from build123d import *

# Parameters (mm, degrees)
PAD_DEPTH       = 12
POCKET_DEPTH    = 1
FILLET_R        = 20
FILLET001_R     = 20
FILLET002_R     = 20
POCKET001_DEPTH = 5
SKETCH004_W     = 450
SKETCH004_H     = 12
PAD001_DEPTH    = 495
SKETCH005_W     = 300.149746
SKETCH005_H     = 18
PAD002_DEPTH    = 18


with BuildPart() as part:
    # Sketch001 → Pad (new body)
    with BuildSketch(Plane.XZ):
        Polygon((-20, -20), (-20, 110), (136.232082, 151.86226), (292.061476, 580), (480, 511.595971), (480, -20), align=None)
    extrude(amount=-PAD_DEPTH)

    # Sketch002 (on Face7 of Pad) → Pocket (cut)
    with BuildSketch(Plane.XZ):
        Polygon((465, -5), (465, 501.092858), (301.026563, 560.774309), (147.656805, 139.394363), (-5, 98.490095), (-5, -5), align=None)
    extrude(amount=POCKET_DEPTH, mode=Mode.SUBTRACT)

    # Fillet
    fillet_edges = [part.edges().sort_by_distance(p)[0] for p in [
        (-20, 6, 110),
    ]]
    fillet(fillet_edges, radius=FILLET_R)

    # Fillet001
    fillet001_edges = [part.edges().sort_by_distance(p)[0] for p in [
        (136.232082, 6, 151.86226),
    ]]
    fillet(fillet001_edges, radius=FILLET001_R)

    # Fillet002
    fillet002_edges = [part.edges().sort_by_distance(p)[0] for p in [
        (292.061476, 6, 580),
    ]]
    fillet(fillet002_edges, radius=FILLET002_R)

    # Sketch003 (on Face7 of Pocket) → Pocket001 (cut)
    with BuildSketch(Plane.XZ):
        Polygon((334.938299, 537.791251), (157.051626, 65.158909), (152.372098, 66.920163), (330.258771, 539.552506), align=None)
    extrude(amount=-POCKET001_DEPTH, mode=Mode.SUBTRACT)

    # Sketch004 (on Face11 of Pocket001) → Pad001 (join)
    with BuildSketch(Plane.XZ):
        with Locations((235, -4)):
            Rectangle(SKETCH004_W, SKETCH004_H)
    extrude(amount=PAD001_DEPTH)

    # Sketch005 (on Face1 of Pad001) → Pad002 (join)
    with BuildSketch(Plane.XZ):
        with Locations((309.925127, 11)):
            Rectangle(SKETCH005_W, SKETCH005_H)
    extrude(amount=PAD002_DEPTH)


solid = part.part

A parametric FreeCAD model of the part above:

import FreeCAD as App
import Part
import Sketcher
Q = App.Units.Quantity


def edges_at(feature, points):
    """Names of the edges that pass closest to the given points."""
    edges = feature.Shape.Edges
    near = lambda p: min(range(len(edges)), key=lambda i: edges[i].distToShape(Part.Vertex(*p))[0])
    return sorted({f"Edge{near(p) + 1}" for p in points})

doc = App.newDocument("Part")
params = doc.addObject("Spreadsheet::Sheet", "Params")
for row, (alias, value) in enumerate([
    ("sketch1_width", "500 mm"),
    ("sketch1_height", "130 mm"),
    ("sketch1_length", "200 mm"),
    ("pad1_length", "12 mm"),
    ("sketch2_width", "470 mm"),
    ("pocket1_length", "1 mm"),
    ("fillet_radius", "20 mm"),
    ("fillet2_radius", "20 mm"),
    ("fillet3_radius", "20 mm"),
    ("sketch3_length", "504.999999 mm"),
    ("sketch3_length2", "5 mm"),
    ("pocket2_length", "5 mm"),
    ("sketch4_width", "450 mm"),
    ("sketch4_height", "12 mm"),
    ("pad2_length", "495 mm"),
    ("sketch5_height", "18 mm"),
    ("pad3_length", "18 mm"),
], start=1):
    params.set(f"A{row}", alias)
    params.set(f"B{row}", "=" + value)
    params.setAlias(f"B{row}", alias)

body = doc.addObject("PartDesign::Body", "Body")

# Sketch on XZ plane
sketch1 = body.newObject("Sketcher::SketchObject", "Sketch")
sketch1.AttachmentSupport = (doc.getObject("XZ_Plane"), [""])
sketch1.MapMode = "FlatFace"
sketch1.addGeometry(Part.LineSegment(App.Vector(-20, 110, 0), App.Vector(-20, -20, 0)), False)
sketch1.addGeometry(Part.LineSegment(App.Vector(-20, -20, 0), App.Vector(480, -20, 0)), False)
sketch1.addGeometry(Part.LineSegment(App.Vector(480, -20, 0), App.Vector(480, 512, 0)), False)
sketch1.addGeometry(Part.LineSegment(App.Vector(480, 512, 0), App.Vector(292, 580, 0)), False)
sketch1.addGeometry(Part.LineSegment(App.Vector(292, 580, 0), App.Vector(136, 152, 0)), False)
sketch1.addGeometry(Part.LineSegment(App.Vector(136, 152, 0), App.Vector(-20, 110, 0)), False)
sketch1.addConstraint(Sketcher.Constraint("Coincident", 0, 2, 1, 1))
sketch1.addConstraint(Sketcher.Constraint("Coincident", 1, 2, 2, 1))
sketch1.addConstraint(Sketcher.Constraint("Coincident", 2, 2, 3, 1))
sketch1.addConstraint(Sketcher.Constraint("Coincident", 3, 2, 4, 1))
sketch1.addConstraint(Sketcher.Constraint("Coincident", 4, 2, 5, 1))
sketch1.addConstraint(Sketcher.Constraint("Coincident", 5, 2, 0, 1))
sketch1.addConstraint(Sketcher.Constraint("Vertical", 0))
sketch1.addConstraint(Sketcher.Constraint("Horizontal", 1))
sketch1.addConstraint(Sketcher.Constraint("Vertical", 2))
sketch1.addConstraint(Sketcher.Constraint("Perpendicular", 3, 4))
sketch1.addConstraint(Sketcher.Constraint("DistanceX", 1, 1, 1, 2, 500.0))
sketch1.addConstraint(Sketcher.Constraint("DistanceY", 0, 2, 0, 1, 130.0))
sketch1.addConstraint(Sketcher.Constraint("Angle", 3, Q("160 deg")))
sketch1.addConstraint(Sketcher.Constraint("Angle", 5, Q("-165 deg")))
sketch1.addConstraint(Sketcher.Constraint("Distance", 3, 200.0))
sketch1.addConstraint(Sketcher.Constraint("DistanceX", 0, 2, -1, 1, 20.0))
sketch1.addConstraint(Sketcher.Constraint("DistanceY", 0, 2, -1, 1, 20.0))
sketch1.addConstraint(Sketcher.Constraint("DistanceY", -1, 1, 3, 2, 580.0))
sketch1.setExpression("Constraints[10]", "Params.sketch1_width")
sketch1.setExpression("Constraints[11]", "Params.sketch1_height")
sketch1.setExpression("Constraints[14]", "Params.sketch1_length")
pad1 = body.newObject("PartDesign::Pad", "Pad")
pad1.Profile = sketch1
pad1.setExpression("Length", "Params.pad1_length")
pad1.Reversed = True

# Sketch on XZ plane
sketch2 = body.newObject("Sketcher::SketchObject", "Sketch001")
sketch2.AttachmentSupport = (doc.getObject("XZ_Plane"), [""])
sketch2.MapMode = "FlatFace"
sketch2.addGeometry(Part.LineSegment(App.Vector(465, -5, 0), App.Vector(465, 501, 0)), False)
sketch2.addGeometry(Part.LineSegment(App.Vector(465, 501, 0), App.Vector(301, 561, 0)), False)
sketch2.addGeometry(Part.LineSegment(App.Vector(301, 561, 0), App.Vector(148, 139, 0)), False)
sketch2.addGeometry(Part.LineSegment(App.Vector(148, 139, 0), App.Vector(-5, 98, 0)), False)
sketch2.addGeometry(Part.LineSegment(App.Vector(-5, 98, 0), App.Vector(-5, -5, 0)), False)
sketch2.addGeometry(Part.LineSegment(App.Vector(-5, -5, 0), App.Vector(465, -5, 0)), False)
sketch2.addConstraint(Sketcher.Constraint("Coincident", 0, 2, 1, 1))
sketch2.addConstraint(Sketcher.Constraint("Coincident", 1, 2, 2, 1))
sketch2.addConstraint(Sketcher.Constraint("Coincident", 2, 2, 3, 1))
sketch2.addConstraint(Sketcher.Constraint("Coincident", 3, 2, 4, 1))
sketch2.addConstraint(Sketcher.Constraint("Coincident", 4, 2, 5, 1))
sketch2.addConstraint(Sketcher.Constraint("Coincident", 5, 2, 0, 1))
sketch2.addConstraint(Sketcher.Constraint("Vertical", 0))
sketch2.addConstraint(Sketcher.Constraint("Vertical", 4))
sketch2.addConstraint(Sketcher.Constraint("Horizontal", 5))
sketch2.addConstraint(Sketcher.Constraint("Perpendicular", 1, 2))
sketch2.addConstraint(Sketcher.Constraint("DistanceX", 5, 1, 5, 2, 470.0))
sketch2.addConstraint(Sketcher.Constraint("Angle", 1, Q("160 deg")))
sketch2.addConstraint(Sketcher.Constraint("Angle", 3, Q("-165 deg")))
sketch2.addConstraint(Sketcher.Constraint("DistanceX", -1, 1, 0, 2, 465.0))
sketch2.addConstraint(Sketcher.Constraint("DistanceY", 4, 2, -1, 1, 5.0))
sketch2.addConstraint(Sketcher.Constraint("DistanceY", 0, 1, 0, 2, 506.092858))
sketch2.addConstraint(Sketcher.Constraint("DistanceY", 4, 2, 4, 1, 103.490095))
sketch2.addConstraint(Sketcher.Constraint("DistanceY", -1, 1, 1, 2, 560.774309))
sketch2.setExpression("Constraints[10]", "Params.sketch2_width")
pocket1 = body.newObject("PartDesign::Pocket", "Pocket")
pocket1.Profile = sketch2
pocket1.setExpression("Length", "Params.pocket1_length")
pocket1.Reversed = True
doc.recompute()

fillet = body.newObject("PartDesign::Fillet", "Fillet")
fillet.Base = (pocket1, edges_at(pocket1, [(-20, 6, 110)]))
fillet.setExpression("Radius", "Params.fillet_radius")
doc.recompute()

fillet2 = body.newObject("PartDesign::Fillet", "Fillet001")
fillet2.Base = (fillet, edges_at(fillet, [(136.232, 6, 151.862)]))
fillet2.setExpression("Radius", "Params.fillet2_radius")
doc.recompute()

fillet3 = body.newObject("PartDesign::Fillet", "Fillet002")
fillet3.Base = (fillet2, edges_at(fillet2, [(292.061, 6, 580)]))
fillet3.setExpression("Radius", "Params.fillet3_radius")

# Sketch on XZ plane
sketch3 = body.newObject("Sketcher::SketchObject", "Sketch002")
sketch3.AttachmentSupport = (doc.getObject("XZ_Plane"), [""])
sketch3.MapMode = "FlatFace"
sketch3.addGeometry(Part.LineSegment(App.Vector(157.1, 65.2, 0), App.Vector(334.9, 537.8, 0)), False)
sketch3.addGeometry(Part.LineSegment(App.Vector(334.9, 537.8, 0), App.Vector(330.3, 539.6, 0)), False)
sketch3.addGeometry(Part.LineSegment(App.Vector(330.3, 539.6, 0), App.Vector(152.4, 66.9, 0)), False)
sketch3.addGeometry(Part.LineSegment(App.Vector(152.4, 66.9, 0), App.Vector(157.1, 65.2, 0)), False)
sketch3.addConstraint(Sketcher.Constraint("Coincident", 0, 2, 1, 1))
sketch3.addConstraint(Sketcher.Constraint("Coincident", 1, 2, 2, 1))
sketch3.addConstraint(Sketcher.Constraint("Coincident", 2, 2, 3, 1))
sketch3.addConstraint(Sketcher.Constraint("Coincident", 3, 2, 0, 1))
sketch3.addConstraint(Sketcher.Constraint("Perpendicular", 0, 1))
sketch3.addConstraint(Sketcher.Constraint("Perpendicular", 1, 2))
sketch3.addConstraint(Sketcher.Constraint("Perpendicular", 2, 3))
sketch3.addConstraint(Sketcher.Constraint("Distance", 0, 504.999999))
sketch3.addConstraint(Sketcher.Constraint("Distance", 1, 5.0))
sketch3.addConstraint(Sketcher.Constraint("DistanceX", -1, 1, 0, 2, 334.938299))
sketch3.addConstraint(Sketcher.Constraint("DistanceX", -1, 1, 2, 2, 152.372098))
sketch3.addConstraint(Sketcher.Constraint("DistanceY", -1, 1, 0, 2, 537.791251))
sketch3.setExpression("Constraints[7]", "Params.sketch3_length")
sketch3.setExpression("Constraints[8]", "Params.sketch3_length2")
pocket2 = body.newObject("PartDesign::Pocket", "Pocket001")
pocket2.Profile = sketch3
pocket2.setExpression("Length", "Params.pocket2_length")

# Sketch on XZ plane
sketch4 = body.newObject("Sketcher::SketchObject", "Sketch003")
sketch4.AttachmentSupport = (doc.getObject("XZ_Plane"), [""])
sketch4.MapMode = "FlatFace"
sketch4.addGeometry(Part.LineSegment(App.Vector(10, 2, 0), App.Vector(10, -10, 0)), False)
sketch4.addGeometry(Part.LineSegment(App.Vector(10, -10, 0), App.Vector(460, -10, 0)), False)
sketch4.addGeometry(Part.LineSegment(App.Vector(460, -10, 0), App.Vector(460, 2, 0)), False)
sketch4.addGeometry(Part.LineSegment(App.Vector(460, 2, 0), App.Vector(10, 2, 0)), False)
sketch4.addConstraint(Sketcher.Constraint("Coincident", 0, 2, 1, 1))
sketch4.addConstraint(Sketcher.Constraint("Coincident", 1, 2, 2, 1))
sketch4.addConstraint(Sketcher.Constraint("Coincident", 2, 2, 3, 1))
sketch4.addConstraint(Sketcher.Constraint("Coincident", 3, 2, 0, 1))
sketch4.addConstraint(Sketcher.Constraint("Vertical", 0))
sketch4.addConstraint(Sketcher.Constraint("Horizontal", 1))
sketch4.addConstraint(Sketcher.Constraint("Vertical", 2))
sketch4.addConstraint(Sketcher.Constraint("Horizontal", 3))
sketch4.addConstraint(Sketcher.Constraint("DistanceX", 1, 1, 1, 2, 450.0))
sketch4.addConstraint(Sketcher.Constraint("DistanceY", 0, 2, 0, 1, 12.0))
sketch4.addConstraint(Sketcher.Constraint("DistanceX", -1, 1, 0, 2, 10.0))
sketch4.addConstraint(Sketcher.Constraint("DistanceY", 0, 2, -1, 1, 10.0))
sketch4.setExpression("Constraints[8]", "Params.sketch4_width")
sketch4.setExpression("Constraints[9]", "Params.sketch4_height")
pad2 = body.newObject("PartDesign::Pad", "Pad001")
pad2.Profile = sketch4
pad2.setExpression("Length", "Params.pad2_length")

# Sketch on XZ plane
sketch5 = body.newObject("Sketcher::SketchObject", "Sketch004")
sketch5.AttachmentSupport = (doc.getObject("XZ_Plane"), [""])
sketch5.MapMode = "FlatFace"
sketch5.addGeometry(Part.LineSegment(App.Vector(160, 20, 0), App.Vector(160, 2, 0)), False)
sketch5.addGeometry(Part.LineSegment(App.Vector(160, 2, 0), App.Vector(460, 2, 0)), False)
sketch5.addGeometry(Part.LineSegment(App.Vector(460, 2, 0), App.Vector(460, 20, 0)), False)
sketch5.addGeometry(Part.LineSegment(App.Vector(460, 20, 0), App.Vector(160, 20, 0)), False)
sketch5.addConstraint(Sketcher.Constraint("Coincident", 0, 2, 1, 1))
sketch5.addConstraint(Sketcher.Constraint("Coincident", 1, 2, 2, 1))
sketch5.addConstraint(Sketcher.Constraint("Coincident", 2, 2, 3, 1))
sketch5.addConstraint(Sketcher.Constraint("Coincident", 3, 2, 0, 1))
sketch5.addConstraint(Sketcher.Constraint("Vertical", 0))
sketch5.addConstraint(Sketcher.Constraint("Horizontal", 1))
sketch5.addConstraint(Sketcher.Constraint("Vertical", 2))
sketch5.addConstraint(Sketcher.Constraint("Horizontal", 3))
sketch5.addConstraint(Sketcher.Constraint("DistanceY", 0, 2, 0, 1, 18.0))
sketch5.addConstraint(Sketcher.Constraint("DistanceY", -1, 1, 0, 2, 2.0))
sketch5.addConstraint(Sketcher.Constraint("DistanceX", -1, 1, 1, 2, 460.0))
sketch5.addConstraint(Sketcher.Constraint("DistanceX", 1, 1, 1, 2, 300.149746))
sketch5.setExpression("Constraints[8]", "Params.sketch5_height")
pad3 = body.newObject("PartDesign::Pad", "Pad002")
pad3.Profile = sketch5
pad3.setExpression("Length", "Params.pad3_length")

doc.recompute()
